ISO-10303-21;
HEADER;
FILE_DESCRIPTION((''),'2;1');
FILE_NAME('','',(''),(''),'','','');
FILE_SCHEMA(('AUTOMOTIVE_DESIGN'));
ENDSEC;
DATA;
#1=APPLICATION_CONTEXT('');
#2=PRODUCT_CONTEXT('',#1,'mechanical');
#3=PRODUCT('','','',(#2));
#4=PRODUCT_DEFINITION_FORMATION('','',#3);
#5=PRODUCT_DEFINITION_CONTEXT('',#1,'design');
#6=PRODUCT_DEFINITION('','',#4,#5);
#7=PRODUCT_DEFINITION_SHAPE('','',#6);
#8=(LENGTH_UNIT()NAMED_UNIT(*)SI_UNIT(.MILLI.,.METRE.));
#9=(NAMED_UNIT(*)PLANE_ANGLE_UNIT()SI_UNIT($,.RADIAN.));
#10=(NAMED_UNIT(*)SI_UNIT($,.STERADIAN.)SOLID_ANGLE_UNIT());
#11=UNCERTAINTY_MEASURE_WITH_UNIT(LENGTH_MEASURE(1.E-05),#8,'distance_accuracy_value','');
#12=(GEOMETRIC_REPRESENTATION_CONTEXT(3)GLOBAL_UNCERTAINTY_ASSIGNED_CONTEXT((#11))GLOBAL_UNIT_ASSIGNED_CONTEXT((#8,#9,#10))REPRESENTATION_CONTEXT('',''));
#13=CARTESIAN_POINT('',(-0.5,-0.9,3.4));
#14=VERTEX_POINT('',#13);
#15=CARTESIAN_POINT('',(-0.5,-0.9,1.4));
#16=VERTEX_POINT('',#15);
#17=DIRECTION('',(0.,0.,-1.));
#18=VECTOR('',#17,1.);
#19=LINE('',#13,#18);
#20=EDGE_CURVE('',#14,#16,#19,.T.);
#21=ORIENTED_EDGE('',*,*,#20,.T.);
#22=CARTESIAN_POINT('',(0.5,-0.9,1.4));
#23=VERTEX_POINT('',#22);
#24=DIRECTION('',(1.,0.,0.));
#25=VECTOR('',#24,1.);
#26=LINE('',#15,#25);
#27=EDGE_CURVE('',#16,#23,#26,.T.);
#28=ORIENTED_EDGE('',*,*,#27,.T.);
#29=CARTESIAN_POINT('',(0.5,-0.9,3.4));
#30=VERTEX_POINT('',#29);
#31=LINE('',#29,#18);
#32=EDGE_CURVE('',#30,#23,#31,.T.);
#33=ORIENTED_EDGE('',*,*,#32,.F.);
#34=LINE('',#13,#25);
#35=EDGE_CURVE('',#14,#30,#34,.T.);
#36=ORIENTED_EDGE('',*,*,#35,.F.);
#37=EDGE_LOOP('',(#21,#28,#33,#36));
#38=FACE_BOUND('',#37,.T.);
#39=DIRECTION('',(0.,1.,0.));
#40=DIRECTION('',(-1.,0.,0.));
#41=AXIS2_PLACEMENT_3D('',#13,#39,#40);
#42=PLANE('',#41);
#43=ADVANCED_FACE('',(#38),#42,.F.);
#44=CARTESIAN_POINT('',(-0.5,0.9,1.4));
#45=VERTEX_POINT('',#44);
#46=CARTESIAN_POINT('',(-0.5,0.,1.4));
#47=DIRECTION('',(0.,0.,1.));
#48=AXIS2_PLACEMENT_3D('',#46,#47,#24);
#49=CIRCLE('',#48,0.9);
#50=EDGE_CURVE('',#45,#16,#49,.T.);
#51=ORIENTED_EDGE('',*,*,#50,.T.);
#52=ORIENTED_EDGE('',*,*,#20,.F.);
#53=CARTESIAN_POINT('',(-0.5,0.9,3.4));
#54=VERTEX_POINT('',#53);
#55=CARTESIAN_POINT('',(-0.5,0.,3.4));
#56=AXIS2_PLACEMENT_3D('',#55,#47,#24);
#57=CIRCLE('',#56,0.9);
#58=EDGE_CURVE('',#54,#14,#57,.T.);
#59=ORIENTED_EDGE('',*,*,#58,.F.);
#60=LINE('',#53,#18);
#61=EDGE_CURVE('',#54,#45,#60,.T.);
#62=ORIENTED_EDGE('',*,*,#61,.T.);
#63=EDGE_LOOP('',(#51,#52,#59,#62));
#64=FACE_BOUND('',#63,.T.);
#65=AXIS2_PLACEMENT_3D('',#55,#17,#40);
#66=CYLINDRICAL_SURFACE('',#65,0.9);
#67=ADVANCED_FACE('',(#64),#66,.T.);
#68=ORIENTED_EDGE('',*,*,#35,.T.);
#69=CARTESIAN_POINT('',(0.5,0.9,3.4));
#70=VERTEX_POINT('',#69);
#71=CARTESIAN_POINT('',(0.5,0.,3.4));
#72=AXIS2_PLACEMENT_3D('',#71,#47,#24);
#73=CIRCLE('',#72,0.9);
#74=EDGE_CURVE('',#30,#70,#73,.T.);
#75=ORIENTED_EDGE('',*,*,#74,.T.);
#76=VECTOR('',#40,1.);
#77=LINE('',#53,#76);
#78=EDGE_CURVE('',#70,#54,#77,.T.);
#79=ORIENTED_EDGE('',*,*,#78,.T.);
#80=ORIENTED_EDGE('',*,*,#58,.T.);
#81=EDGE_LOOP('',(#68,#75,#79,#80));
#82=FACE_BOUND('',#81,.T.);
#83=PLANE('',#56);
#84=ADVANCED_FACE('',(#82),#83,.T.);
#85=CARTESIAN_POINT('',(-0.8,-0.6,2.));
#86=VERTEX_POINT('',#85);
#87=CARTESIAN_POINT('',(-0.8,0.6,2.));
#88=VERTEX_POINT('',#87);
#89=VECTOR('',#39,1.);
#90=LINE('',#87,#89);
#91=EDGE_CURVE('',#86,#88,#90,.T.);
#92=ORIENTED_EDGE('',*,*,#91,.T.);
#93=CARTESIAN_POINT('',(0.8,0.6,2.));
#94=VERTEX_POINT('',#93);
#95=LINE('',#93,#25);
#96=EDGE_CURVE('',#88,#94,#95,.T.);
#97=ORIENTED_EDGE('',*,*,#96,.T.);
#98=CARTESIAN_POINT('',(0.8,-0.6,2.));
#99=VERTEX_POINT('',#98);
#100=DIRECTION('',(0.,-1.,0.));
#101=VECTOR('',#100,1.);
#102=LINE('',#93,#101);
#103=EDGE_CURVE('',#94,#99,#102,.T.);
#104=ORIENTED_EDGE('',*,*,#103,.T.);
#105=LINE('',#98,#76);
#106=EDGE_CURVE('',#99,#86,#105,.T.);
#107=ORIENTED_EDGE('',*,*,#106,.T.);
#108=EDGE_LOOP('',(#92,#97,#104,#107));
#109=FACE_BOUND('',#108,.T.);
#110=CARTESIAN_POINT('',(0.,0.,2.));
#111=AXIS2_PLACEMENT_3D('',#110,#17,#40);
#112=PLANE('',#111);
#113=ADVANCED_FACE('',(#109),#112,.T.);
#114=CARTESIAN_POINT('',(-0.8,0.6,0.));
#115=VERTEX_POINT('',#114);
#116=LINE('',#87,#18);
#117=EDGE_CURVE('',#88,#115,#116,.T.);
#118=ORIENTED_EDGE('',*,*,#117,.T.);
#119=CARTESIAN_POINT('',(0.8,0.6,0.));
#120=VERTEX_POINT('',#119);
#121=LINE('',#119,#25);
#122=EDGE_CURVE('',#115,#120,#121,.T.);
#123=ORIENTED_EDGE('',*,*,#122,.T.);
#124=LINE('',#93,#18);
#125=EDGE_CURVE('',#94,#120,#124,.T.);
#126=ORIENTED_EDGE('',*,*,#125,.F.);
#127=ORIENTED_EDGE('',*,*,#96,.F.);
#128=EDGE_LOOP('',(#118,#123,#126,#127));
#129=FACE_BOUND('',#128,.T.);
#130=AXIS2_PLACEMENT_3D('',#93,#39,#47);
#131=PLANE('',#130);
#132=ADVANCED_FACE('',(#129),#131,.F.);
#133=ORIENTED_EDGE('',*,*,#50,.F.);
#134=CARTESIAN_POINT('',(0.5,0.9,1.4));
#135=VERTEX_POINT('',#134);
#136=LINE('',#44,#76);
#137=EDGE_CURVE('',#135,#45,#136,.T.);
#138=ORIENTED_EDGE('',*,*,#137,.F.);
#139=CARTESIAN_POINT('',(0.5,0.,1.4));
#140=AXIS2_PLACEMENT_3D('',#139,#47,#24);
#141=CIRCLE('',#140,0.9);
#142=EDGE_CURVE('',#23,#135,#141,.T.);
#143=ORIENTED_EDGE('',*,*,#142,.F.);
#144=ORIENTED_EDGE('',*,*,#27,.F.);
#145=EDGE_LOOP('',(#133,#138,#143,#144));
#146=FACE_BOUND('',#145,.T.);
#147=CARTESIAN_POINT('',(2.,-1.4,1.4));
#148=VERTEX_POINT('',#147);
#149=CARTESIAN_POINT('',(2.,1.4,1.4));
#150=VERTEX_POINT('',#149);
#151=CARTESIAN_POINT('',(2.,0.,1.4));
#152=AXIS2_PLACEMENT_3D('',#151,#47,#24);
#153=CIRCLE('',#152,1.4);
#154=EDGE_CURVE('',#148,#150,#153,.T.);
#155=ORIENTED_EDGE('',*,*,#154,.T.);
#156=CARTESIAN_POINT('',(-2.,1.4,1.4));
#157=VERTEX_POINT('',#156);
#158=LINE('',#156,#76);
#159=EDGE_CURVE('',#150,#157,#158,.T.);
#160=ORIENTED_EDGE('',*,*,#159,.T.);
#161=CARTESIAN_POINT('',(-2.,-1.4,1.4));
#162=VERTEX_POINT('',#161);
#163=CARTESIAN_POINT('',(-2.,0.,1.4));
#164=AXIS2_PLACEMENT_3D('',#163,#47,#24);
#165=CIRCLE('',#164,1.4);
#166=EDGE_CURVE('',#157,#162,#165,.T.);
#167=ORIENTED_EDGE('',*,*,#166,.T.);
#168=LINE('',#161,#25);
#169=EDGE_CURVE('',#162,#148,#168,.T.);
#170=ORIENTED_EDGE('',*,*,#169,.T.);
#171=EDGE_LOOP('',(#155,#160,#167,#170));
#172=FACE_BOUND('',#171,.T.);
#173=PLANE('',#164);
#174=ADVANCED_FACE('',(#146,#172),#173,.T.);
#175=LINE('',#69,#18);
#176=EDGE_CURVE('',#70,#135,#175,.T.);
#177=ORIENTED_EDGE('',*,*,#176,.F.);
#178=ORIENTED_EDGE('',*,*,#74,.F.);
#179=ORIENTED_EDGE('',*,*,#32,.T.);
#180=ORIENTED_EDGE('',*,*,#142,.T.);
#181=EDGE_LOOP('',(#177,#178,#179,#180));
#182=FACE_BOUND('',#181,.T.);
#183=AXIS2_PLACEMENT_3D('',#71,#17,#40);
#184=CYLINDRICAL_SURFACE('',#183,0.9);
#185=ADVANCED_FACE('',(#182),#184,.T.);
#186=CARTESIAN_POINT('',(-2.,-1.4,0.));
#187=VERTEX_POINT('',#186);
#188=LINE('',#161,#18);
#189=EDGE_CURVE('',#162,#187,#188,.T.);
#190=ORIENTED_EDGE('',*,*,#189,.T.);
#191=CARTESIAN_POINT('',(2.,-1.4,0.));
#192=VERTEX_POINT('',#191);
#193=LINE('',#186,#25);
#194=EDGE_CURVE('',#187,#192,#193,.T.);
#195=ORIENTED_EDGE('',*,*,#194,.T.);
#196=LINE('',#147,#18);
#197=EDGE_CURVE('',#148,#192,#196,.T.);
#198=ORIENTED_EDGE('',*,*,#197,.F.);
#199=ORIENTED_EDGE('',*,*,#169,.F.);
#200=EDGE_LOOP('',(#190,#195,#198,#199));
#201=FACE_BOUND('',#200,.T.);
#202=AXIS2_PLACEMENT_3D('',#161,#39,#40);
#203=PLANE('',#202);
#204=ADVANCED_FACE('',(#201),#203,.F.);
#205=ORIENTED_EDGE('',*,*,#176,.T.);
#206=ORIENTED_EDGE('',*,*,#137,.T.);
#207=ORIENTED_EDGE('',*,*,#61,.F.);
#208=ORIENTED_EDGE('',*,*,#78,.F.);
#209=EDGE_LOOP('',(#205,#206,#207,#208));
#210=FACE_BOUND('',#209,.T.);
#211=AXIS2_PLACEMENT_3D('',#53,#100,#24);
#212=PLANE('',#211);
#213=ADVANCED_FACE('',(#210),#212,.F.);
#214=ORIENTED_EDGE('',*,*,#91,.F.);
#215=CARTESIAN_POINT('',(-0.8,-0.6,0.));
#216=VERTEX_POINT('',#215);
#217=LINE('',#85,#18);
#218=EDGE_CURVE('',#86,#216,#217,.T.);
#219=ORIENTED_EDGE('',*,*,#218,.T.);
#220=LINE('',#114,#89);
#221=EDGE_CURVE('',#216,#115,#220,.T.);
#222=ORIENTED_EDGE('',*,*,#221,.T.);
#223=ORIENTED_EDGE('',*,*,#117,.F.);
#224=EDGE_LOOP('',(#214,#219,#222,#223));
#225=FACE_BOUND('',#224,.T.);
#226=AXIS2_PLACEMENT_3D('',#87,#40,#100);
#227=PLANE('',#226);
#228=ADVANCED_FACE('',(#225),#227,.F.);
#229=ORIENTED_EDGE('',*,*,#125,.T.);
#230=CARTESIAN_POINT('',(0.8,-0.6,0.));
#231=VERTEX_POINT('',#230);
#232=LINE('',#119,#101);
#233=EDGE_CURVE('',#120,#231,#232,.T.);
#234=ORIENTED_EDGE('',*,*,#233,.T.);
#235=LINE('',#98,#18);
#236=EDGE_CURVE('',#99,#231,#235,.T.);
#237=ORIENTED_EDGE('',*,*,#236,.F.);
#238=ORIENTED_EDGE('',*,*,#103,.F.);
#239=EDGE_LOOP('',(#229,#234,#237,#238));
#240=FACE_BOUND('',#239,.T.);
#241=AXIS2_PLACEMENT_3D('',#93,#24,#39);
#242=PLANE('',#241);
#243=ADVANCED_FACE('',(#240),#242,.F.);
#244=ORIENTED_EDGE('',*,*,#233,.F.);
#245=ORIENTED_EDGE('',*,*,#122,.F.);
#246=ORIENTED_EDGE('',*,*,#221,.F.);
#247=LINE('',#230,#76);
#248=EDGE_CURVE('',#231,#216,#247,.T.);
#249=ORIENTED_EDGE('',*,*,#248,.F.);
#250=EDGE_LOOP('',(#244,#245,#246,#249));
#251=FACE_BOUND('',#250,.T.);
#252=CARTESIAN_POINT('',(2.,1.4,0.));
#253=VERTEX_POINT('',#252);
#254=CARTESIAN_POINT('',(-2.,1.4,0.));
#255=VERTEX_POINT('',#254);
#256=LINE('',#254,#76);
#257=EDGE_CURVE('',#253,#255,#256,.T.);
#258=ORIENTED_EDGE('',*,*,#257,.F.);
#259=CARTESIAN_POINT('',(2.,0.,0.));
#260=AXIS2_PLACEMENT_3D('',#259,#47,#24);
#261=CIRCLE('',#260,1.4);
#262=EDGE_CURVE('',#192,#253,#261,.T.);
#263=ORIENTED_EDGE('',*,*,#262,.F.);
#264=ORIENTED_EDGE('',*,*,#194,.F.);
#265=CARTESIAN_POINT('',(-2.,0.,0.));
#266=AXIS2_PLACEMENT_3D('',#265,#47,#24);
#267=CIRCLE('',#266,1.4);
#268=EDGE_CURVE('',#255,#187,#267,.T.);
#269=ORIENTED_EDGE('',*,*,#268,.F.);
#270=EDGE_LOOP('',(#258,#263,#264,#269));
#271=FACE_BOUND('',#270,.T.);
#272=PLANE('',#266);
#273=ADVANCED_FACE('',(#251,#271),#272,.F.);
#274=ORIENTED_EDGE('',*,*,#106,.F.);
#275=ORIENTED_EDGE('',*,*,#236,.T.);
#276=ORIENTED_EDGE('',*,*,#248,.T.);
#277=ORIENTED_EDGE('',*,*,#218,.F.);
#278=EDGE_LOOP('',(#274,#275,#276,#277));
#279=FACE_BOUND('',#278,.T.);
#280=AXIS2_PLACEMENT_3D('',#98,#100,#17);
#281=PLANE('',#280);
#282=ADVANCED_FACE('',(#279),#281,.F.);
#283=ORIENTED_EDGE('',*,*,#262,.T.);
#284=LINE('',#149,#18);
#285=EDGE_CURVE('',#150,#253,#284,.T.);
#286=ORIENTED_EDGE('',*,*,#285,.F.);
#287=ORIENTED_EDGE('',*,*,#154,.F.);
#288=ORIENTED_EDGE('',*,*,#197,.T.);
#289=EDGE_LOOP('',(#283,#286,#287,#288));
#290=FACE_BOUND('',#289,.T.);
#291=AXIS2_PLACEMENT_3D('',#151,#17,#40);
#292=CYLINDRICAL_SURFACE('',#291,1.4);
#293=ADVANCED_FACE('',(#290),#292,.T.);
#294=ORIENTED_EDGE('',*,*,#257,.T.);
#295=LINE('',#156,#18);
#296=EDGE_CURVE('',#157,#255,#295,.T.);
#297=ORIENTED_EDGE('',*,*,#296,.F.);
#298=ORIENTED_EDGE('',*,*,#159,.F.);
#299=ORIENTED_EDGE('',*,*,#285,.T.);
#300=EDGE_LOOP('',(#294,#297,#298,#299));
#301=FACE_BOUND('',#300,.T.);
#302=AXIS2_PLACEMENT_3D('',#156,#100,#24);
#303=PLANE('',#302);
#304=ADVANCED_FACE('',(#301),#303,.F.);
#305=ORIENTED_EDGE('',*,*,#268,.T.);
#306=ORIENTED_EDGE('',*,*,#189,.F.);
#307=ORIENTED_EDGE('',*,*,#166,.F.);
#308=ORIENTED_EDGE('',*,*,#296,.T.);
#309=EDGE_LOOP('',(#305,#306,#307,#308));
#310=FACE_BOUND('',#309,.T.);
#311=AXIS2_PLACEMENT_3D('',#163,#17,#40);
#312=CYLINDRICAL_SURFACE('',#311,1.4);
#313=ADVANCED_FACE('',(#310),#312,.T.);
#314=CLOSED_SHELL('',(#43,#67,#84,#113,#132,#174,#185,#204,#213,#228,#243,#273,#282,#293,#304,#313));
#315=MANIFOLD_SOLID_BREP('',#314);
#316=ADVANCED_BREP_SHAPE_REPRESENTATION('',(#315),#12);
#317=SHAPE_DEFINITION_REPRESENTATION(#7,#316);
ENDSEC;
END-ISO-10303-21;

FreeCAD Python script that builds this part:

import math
import FreeCAD as App
import Part
import Sketcher

V = App.Vector


def add_polygon(sketch, points):
    """Adds a closed chain of lines whose ends are joined by coincident constraints."""
    first, n = sketch.GeometryCount, len(points)
    for a, b in zip(points, points[1:] + points[:1]):
        sketch.addGeometry(Part.LineSegment(App.Vector(*a, 0), App.Vector(*b, 0)), False)
    for i in range(n):
        sketch.addConstraint(Sketcher.Constraint("Coincident", first + i, 2, first + (i + 1) % n, 1))

doc = App.newDocument("Part")
body = doc.addObject("PartDesign::Body", "Body")

sketch1 = body.newObject("Sketcher::SketchObject", "Sketch")
sketch1.AttachmentSupport = (doc.getObject("XY_Plane"), [""])
sketch1.MapMode = "FlatFace"
sketch1.addGeometry([
    Part.LineSegment(V(2, 1.4, 0), V(-2, 1.4, 0)),
    Part.ArcOfCircle(Part.Circle(V(-2, 0, 0), V(0, 0, 1), 1.4), math.radians(90), math.radians(270)),
    Part.LineSegment(V(-2, -1.4, 0), V(2, -1.4, 0)),
    Part.ArcOfCircle(Part.Circle(V(2, 0, 0), V(0, 0, 1), 1.4), math.radians(-90), math.radians(90)),
], False)
sketch1.addConstraint([
    Sketcher.Constraint("Tangent", 0, 2, 1, 1),
    Sketcher.Constraint("Tangent", 1, 2, 2, 1),
    Sketcher.Constraint("Tangent", 2, 2, 3, 1),
    Sketcher.Constraint("Tangent", 3, 2, 0, 1),
    Sketcher.Constraint("Horizontal", 0),
    Sketcher.Constraint("Horizontal", 2),
    Sketcher.Constraint("Symmetric", 1, 3, 3, 3, -1, 1),
    Sketcher.Constraint("Radius", 1, 1.4),
    Sketcher.Constraint("DistanceX", 0, 2, 0, 1, 4.0),
])
pad1 = body.newObject("PartDesign::Pad", "Pad")
pad1.Profile = sketch1
pad1.Length = 1.4

sketch2 = body.newObject("Sketcher::SketchObject", "Sketch001")
sketch2.AttachmentSupport = (doc.getObject("XY_Plane"), [""])
sketch2.MapMode = "FlatFace"
sketch2.AttachmentOffset = App.Placement(V(0, 0, 1.4), App.Rotation())
sketch2.addGeometry([
    Part.LineSegment(V(0.5, 0.9, 0), V(-0.5, 0.9, 0)),
    Part.ArcOfCircle(Part.Circle(V(-0.5, 0, 0), V(0, 0, 1), 0.9), math.radians(90), math.radians(270)),
    Part.LineSegment(V(-0.5, -0.9, 0), V(0.5, -0.9, 0)),
    Part.ArcOfCircle(Part.Circle(V(0.5, 0, 0), V(0, 0, 1), 0.9), math.radians(-90), math.radians(90)),
], False)
sketch2.addConstraint([
    Sketcher.Constraint("Tangent", 0, 2, 1, 1),
    Sketcher.Constraint("Tangent", 1, 2, 2, 1),
    Sketcher.Constraint("Tangent", 2, 2, 3, 1),
    Sketcher.Constraint("Tangent", 3, 2, 0, 1),
    Sketcher.Constraint("Horizontal", 0),
    Sketcher.Constraint("Horizontal", 2),
    Sketcher.Constraint("Symmetric", 1, 3, 3, 3, -1, 1),
    Sketcher.Constraint("Radius", 1, 0.9),
    Sketcher.Constraint("DistanceX", 0, 2, 0, 1, 1.0),
])
pad2 = body.newObject("PartDesign::Pad", "Pad001")
pad2.Profile = sketch2
pad2.Length = 2

sketch3 = body.newObject("Sketcher::SketchObject", "Sketch002")
sketch3.AttachmentSupport = (doc.getObject("XY_Plane"), [""])
sketch3.MapMode = "FlatFace"
add_polygon(sketch3, [(0.8, 0.6), (0.8, -0.6), (-0.8, -0.6), (-0.8, 0.6)])
sketch3.addConstraint([
    Sketcher.Constraint("Vertical", 0),
    Sketcher.Constraint("Horizontal", 1),
    Sketcher.Constraint("Vertical", 2),
    Sketcher.Constraint("Horizontal", 3),
    Sketcher.Constraint("Symmetric", 0, 2, 2, 2, -1, 1),
    Sketcher.Constraint("DistanceX", 1, 2, 1, 1, 1.6),
    Sketcher.Constraint("DistanceY", 0, 2, 0, 1, 1.2),
])
pocket1 = body.newObject("PartDesign::Pocket", "Pocket")
pocket1.Profile = sketch3
pocket1.Length = 2
pocket1.Reversed = True

doc.recompute()
